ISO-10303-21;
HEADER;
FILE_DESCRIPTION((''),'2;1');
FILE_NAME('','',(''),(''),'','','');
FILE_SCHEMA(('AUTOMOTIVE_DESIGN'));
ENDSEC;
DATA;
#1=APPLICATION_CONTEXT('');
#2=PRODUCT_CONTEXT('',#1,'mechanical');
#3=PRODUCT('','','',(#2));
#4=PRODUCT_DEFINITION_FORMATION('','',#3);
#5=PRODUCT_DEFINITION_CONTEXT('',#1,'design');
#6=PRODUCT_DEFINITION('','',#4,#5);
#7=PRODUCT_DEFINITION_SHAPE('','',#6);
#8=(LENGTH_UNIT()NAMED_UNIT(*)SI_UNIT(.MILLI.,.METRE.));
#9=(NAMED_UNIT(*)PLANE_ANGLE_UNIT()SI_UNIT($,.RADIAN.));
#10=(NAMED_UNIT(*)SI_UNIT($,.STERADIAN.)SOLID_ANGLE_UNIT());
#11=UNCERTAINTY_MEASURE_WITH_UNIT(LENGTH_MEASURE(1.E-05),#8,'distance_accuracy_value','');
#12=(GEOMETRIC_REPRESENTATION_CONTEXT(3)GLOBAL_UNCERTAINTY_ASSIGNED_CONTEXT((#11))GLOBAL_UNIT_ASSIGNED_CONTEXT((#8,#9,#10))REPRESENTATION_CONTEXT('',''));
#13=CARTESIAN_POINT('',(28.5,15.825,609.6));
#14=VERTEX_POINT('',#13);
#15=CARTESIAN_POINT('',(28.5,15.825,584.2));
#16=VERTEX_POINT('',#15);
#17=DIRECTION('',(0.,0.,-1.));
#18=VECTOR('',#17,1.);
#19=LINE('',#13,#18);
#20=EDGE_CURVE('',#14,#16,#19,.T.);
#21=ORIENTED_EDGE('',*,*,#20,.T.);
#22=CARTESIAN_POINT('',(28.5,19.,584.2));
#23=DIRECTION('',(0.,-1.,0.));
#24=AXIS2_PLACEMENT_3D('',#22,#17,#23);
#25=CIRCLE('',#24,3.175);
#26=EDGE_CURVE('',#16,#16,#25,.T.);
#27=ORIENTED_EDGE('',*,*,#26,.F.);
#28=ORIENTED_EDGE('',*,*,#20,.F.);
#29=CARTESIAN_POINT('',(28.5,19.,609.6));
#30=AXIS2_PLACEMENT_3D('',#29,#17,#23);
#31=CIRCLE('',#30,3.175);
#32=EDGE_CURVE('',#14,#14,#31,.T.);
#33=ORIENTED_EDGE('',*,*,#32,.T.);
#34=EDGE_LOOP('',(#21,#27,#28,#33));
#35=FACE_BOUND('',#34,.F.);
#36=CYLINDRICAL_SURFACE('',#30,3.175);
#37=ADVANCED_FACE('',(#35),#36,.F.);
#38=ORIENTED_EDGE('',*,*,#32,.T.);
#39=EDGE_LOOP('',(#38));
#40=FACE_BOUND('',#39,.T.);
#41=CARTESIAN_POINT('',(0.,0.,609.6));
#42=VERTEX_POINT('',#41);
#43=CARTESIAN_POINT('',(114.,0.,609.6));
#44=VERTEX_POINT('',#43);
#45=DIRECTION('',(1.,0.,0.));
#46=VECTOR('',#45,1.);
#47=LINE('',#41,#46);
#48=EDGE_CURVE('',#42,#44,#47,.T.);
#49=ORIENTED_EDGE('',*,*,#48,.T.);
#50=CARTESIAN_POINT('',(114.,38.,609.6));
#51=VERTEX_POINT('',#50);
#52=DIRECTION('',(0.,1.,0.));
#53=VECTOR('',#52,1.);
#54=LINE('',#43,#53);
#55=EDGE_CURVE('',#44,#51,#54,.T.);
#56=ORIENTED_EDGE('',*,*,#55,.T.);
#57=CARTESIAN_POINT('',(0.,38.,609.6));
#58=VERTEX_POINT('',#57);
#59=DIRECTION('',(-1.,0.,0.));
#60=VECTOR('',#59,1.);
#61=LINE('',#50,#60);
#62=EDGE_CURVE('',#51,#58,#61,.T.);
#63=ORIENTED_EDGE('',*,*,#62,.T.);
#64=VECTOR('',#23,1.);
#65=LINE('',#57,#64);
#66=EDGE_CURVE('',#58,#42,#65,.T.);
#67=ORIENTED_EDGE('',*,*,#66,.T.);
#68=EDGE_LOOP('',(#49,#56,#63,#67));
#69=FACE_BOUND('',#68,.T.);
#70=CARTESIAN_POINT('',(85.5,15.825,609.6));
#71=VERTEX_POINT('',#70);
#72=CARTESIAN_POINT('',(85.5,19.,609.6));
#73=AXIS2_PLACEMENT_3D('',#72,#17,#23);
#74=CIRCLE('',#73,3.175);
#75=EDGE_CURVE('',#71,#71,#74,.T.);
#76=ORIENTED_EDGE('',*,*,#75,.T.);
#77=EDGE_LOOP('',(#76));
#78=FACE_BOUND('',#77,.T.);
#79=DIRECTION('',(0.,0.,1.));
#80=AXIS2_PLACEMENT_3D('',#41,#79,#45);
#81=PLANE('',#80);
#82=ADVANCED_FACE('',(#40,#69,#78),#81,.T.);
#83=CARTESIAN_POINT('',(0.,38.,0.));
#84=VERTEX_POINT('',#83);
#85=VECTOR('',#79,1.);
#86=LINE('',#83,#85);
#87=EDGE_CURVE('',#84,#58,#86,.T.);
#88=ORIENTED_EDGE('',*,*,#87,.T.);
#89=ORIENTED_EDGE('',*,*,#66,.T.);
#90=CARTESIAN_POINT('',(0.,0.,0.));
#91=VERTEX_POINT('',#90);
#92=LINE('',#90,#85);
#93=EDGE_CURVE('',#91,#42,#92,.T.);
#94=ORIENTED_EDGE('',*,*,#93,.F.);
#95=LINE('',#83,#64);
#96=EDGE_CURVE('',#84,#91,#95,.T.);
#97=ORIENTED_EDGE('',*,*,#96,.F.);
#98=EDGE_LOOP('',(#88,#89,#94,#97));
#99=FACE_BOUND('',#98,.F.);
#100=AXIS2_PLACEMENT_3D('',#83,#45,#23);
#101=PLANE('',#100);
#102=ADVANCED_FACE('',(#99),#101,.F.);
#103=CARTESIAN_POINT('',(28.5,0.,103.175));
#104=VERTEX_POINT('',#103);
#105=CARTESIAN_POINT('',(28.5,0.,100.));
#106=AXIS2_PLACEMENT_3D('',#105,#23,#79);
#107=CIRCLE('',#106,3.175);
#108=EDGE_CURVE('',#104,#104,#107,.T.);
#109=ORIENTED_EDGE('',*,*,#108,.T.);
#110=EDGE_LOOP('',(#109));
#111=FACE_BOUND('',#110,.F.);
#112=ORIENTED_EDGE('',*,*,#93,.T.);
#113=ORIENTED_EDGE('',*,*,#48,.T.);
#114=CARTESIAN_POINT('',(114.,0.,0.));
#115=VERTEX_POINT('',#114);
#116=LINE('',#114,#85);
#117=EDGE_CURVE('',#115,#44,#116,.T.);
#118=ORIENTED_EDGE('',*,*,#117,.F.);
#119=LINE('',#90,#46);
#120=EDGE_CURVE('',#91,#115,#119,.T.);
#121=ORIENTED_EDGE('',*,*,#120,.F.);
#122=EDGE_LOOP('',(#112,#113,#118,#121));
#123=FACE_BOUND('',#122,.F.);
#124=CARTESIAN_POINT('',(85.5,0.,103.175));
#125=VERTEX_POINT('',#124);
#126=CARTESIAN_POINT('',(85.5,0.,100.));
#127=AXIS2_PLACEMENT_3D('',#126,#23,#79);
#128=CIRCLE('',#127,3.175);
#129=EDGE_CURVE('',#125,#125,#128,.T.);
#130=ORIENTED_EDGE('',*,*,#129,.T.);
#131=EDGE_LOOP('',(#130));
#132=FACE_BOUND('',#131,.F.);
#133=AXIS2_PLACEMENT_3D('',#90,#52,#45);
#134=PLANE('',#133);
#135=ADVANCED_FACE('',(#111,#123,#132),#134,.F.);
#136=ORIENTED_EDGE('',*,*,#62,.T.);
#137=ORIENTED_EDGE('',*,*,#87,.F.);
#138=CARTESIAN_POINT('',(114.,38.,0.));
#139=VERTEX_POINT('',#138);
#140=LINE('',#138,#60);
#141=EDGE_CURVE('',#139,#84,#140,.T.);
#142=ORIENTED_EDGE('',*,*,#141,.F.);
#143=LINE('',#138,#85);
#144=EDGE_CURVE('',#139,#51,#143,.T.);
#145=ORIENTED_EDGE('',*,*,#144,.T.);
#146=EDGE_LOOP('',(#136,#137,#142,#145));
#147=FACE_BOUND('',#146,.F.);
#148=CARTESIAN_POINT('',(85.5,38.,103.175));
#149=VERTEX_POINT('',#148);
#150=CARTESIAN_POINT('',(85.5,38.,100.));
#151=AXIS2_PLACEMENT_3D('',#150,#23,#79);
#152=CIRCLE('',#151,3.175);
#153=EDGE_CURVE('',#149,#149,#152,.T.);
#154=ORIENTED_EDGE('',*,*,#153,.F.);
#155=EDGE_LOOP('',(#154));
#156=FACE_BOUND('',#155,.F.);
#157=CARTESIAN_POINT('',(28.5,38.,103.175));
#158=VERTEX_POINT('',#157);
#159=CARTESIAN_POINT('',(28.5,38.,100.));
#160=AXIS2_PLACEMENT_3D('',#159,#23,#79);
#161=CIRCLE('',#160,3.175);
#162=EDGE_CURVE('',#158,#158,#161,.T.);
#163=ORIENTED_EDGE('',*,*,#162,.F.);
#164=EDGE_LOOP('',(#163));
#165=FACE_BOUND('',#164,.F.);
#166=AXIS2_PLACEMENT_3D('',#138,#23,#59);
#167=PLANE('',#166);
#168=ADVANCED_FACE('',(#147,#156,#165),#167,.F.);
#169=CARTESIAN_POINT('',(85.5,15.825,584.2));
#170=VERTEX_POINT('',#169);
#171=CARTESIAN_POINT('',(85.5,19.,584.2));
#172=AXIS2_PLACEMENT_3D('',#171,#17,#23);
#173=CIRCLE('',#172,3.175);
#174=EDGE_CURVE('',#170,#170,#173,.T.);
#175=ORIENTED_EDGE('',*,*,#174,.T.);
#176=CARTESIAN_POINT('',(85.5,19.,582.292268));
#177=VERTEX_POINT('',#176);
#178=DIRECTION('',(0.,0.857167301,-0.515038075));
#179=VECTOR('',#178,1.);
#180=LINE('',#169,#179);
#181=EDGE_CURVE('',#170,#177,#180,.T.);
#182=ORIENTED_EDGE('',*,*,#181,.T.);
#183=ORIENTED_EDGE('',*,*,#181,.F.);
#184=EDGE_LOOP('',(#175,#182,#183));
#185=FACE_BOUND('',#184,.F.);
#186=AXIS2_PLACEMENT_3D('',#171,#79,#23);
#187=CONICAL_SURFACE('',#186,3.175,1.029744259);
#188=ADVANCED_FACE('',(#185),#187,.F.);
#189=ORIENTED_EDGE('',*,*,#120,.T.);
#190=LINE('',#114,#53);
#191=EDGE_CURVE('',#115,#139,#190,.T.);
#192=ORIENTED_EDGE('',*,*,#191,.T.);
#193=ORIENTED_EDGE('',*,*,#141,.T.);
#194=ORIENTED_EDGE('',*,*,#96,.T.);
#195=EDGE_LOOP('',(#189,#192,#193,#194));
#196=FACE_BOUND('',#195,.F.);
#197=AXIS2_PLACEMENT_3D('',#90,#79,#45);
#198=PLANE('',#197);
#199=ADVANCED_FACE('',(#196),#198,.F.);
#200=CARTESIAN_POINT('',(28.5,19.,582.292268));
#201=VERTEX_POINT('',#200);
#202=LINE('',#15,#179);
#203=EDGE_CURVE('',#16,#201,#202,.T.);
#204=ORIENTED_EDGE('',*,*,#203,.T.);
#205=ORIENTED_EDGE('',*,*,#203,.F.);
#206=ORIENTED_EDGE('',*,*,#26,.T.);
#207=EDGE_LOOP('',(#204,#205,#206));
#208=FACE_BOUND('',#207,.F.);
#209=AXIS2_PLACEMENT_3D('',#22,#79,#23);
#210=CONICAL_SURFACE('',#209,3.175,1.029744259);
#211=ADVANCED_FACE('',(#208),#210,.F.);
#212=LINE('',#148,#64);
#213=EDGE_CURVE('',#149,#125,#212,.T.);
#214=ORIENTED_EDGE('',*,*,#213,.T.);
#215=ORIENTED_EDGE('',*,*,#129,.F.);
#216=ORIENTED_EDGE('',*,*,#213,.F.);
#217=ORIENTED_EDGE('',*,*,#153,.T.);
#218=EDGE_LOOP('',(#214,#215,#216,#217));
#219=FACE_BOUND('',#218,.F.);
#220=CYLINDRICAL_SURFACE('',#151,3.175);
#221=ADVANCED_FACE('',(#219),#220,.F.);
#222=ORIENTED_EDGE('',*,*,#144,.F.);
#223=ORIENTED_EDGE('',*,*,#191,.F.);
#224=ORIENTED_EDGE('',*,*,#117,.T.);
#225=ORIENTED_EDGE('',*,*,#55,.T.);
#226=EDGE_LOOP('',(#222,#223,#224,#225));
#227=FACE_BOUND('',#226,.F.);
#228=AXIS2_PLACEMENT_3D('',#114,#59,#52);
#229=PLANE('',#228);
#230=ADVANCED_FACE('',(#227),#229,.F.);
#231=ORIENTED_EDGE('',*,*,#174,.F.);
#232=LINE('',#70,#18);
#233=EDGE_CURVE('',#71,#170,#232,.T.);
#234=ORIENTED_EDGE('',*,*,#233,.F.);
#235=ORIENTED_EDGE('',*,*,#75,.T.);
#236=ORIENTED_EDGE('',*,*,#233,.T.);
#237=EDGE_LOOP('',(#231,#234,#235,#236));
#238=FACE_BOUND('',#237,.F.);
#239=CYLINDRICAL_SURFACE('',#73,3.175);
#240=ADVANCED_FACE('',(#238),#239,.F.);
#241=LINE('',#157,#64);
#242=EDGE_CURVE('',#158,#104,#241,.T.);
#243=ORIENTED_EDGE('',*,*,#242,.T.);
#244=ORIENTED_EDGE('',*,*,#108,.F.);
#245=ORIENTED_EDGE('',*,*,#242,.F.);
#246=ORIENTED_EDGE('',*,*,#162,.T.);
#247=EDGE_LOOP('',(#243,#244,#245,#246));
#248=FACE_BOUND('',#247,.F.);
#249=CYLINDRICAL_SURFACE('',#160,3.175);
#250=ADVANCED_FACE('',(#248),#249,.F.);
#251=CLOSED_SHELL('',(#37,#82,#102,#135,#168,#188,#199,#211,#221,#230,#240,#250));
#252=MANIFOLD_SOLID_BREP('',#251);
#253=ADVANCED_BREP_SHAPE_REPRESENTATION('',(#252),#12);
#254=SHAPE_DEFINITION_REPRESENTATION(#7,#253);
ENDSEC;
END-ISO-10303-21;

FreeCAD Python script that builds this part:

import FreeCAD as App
import Part
import Sketcher
from FreeCAD import Vector
Q = App.Units.Quantity


def add_polygon(sketch, points):
    """Adds a closed chain of lines whose ends are joined by coincident constraints."""
    first, n = sketch.GeometryCount, len(points)
    for a, b in zip(points, points[1:] + points[:1]):
        sketch.addGeometry(Part.LineSegment(App.Vector(*a, 0), App.Vector(*b, 0)), False)
    for i in range(n):
        sketch.addConstraint(Sketcher.Constraint("Coincident", first + i, 2, first + (i + 1) % n, 1))

doc = App.newDocument("Part")
body = doc.addObject("PartDesign::Body", "Body")

# Sketch on XY plane
sketch1 = body.newObject("Sketcher::SketchObject", "Sketch")
sketch1.AttachmentSupport = (doc.getObject("XY_Plane"), [""])
sketch1.MapMode = "FlatFace"
add_polygon(sketch1, [(0, 38), (0, 0), (114, 0), (114, 38)])  # lines 0-3
sketch1.addConstraint(Sketcher.Constraint("Vertical", 0))
sketch1.addConstraint(Sketcher.Constraint("Horizontal", 1))
sketch1.addConstraint(Sketcher.Constraint("Vertical", 2))
sketch1.addConstraint(Sketcher.Constraint("Horizontal", 3))
sketch1.addConstraint(Sketcher.Constraint("Coincident", 0, 2, -1, 1))
sketch1.addConstraint(Sketcher.Constraint("DistanceX", 1, 1, 1, 2, Q("4.4882 in")))
sketch1.addConstraint(Sketcher.Constraint("DistanceY", 0, 2, 0, 1, 38.0))
pad1 = body.newObject("PartDesign::Pad", "Pad")
pad1.Profile = sketch1
pad1.Length = Q("24 in")

# Sketch on XY plane
sketch2 = body.newObject("Sketcher::SketchObject", "Sketch001")
sketch2.AttachmentSupport = (doc.getObject("XY_Plane"), [""])
sketch2.MapMode = "FlatFace"
sketch2.AttachmentOffset = App.Placement(Vector(0, 0, 24 * 25.4), App.Rotation())
sketch2.addGeometry(Part.Circle(Vector(28.5, 19, 0), Vector(0, 0, 1), 3.175), False)
sketch2.addGeometry(Part.Circle(Vector(85.5, 19, 0), Vector(0, 0, 1), 3.175), False)
sketch2.addConstraint(Sketcher.Constraint("Equal", 0, 1))
sketch2.addConstraint(Sketcher.Constraint("Horizontal", 0, 3, 1, 3))
sketch2.addConstraint(Sketcher.Constraint("Diameter", 0, Q("0.25 in")))
sketch2.addConstraint(Sketcher.Constraint("DistanceX", 0, 3, 1, 3, Q("2.2441 in")))
sketch2.addConstraint(Sketcher.Constraint("DistanceX", -1, 1, 0, 3, 28.5))
sketch2.addConstraint(Sketcher.Constraint("DistanceY", -1, 1, 0, 3, 19.0))
doc.recompute()
hole = body.newObject("PartDesign::Hole", "Hole")
hole.Profile = sketch2
hole.ThreadType = "None"
hole.Diameter = Q("0.25 in")
hole.DepthType = "Dimension"
hole.Depth = Q("1 in")
hole.DrillPoint = "Angled"
hole.DrillPointAngle = 118

# Sketch on XZ plane
sketch3 = body.newObject("Sketcher::SketchObject", "Sketch002")
sketch3.AttachmentSupport = (doc.getObject("XZ_Plane"), [""])
sketch3.MapMode = "FlatFace"
sketch3.AttachmentOffset = App.Placement(Vector(0, 0, -38), App.Rotation())
sketch3.addGeometry(Part.Circle(Vector(85.5, 100, 0), Vector(0, 0, 1), 3.175), False)
sketch3.addGeometry(Part.Circle(Vector(28.5, 100, 0), Vector(0, 0, 1), 3.175), False)
sketch3.addConstraint(Sketcher.Constraint("Equal", 0, 1))
sketch3.addConstraint(Sketcher.Constraint("Horizontal", 0, 3, 1, 3))
sketch3.addConstraint(Sketcher.Constraint("Diameter", 0, Q("0.25 in")))
sketch3.addConstraint(Sketcher.Constraint("DistanceY", -1, 1, 0, 3, Q("3.937 in")))
sketch3.addConstraint(Sketcher.Constraint("DistanceX", 1, 3, 0, 3, Q("2.2441 in")))
sketch3.addConstraint(Sketcher.Constraint("DistanceX", -1, 1, 0, 3, 85.5))
doc.recompute()
hole2 = body.newObject("PartDesign::Hole", "Hole001")
hole2.Profile = sketch3
hole2.ThreadType = "None"
hole2.Diameter = Q("0.25 in")
hole2.DepthType = "ThroughAll"
hole2.Reversed = True

doc.recompute()
